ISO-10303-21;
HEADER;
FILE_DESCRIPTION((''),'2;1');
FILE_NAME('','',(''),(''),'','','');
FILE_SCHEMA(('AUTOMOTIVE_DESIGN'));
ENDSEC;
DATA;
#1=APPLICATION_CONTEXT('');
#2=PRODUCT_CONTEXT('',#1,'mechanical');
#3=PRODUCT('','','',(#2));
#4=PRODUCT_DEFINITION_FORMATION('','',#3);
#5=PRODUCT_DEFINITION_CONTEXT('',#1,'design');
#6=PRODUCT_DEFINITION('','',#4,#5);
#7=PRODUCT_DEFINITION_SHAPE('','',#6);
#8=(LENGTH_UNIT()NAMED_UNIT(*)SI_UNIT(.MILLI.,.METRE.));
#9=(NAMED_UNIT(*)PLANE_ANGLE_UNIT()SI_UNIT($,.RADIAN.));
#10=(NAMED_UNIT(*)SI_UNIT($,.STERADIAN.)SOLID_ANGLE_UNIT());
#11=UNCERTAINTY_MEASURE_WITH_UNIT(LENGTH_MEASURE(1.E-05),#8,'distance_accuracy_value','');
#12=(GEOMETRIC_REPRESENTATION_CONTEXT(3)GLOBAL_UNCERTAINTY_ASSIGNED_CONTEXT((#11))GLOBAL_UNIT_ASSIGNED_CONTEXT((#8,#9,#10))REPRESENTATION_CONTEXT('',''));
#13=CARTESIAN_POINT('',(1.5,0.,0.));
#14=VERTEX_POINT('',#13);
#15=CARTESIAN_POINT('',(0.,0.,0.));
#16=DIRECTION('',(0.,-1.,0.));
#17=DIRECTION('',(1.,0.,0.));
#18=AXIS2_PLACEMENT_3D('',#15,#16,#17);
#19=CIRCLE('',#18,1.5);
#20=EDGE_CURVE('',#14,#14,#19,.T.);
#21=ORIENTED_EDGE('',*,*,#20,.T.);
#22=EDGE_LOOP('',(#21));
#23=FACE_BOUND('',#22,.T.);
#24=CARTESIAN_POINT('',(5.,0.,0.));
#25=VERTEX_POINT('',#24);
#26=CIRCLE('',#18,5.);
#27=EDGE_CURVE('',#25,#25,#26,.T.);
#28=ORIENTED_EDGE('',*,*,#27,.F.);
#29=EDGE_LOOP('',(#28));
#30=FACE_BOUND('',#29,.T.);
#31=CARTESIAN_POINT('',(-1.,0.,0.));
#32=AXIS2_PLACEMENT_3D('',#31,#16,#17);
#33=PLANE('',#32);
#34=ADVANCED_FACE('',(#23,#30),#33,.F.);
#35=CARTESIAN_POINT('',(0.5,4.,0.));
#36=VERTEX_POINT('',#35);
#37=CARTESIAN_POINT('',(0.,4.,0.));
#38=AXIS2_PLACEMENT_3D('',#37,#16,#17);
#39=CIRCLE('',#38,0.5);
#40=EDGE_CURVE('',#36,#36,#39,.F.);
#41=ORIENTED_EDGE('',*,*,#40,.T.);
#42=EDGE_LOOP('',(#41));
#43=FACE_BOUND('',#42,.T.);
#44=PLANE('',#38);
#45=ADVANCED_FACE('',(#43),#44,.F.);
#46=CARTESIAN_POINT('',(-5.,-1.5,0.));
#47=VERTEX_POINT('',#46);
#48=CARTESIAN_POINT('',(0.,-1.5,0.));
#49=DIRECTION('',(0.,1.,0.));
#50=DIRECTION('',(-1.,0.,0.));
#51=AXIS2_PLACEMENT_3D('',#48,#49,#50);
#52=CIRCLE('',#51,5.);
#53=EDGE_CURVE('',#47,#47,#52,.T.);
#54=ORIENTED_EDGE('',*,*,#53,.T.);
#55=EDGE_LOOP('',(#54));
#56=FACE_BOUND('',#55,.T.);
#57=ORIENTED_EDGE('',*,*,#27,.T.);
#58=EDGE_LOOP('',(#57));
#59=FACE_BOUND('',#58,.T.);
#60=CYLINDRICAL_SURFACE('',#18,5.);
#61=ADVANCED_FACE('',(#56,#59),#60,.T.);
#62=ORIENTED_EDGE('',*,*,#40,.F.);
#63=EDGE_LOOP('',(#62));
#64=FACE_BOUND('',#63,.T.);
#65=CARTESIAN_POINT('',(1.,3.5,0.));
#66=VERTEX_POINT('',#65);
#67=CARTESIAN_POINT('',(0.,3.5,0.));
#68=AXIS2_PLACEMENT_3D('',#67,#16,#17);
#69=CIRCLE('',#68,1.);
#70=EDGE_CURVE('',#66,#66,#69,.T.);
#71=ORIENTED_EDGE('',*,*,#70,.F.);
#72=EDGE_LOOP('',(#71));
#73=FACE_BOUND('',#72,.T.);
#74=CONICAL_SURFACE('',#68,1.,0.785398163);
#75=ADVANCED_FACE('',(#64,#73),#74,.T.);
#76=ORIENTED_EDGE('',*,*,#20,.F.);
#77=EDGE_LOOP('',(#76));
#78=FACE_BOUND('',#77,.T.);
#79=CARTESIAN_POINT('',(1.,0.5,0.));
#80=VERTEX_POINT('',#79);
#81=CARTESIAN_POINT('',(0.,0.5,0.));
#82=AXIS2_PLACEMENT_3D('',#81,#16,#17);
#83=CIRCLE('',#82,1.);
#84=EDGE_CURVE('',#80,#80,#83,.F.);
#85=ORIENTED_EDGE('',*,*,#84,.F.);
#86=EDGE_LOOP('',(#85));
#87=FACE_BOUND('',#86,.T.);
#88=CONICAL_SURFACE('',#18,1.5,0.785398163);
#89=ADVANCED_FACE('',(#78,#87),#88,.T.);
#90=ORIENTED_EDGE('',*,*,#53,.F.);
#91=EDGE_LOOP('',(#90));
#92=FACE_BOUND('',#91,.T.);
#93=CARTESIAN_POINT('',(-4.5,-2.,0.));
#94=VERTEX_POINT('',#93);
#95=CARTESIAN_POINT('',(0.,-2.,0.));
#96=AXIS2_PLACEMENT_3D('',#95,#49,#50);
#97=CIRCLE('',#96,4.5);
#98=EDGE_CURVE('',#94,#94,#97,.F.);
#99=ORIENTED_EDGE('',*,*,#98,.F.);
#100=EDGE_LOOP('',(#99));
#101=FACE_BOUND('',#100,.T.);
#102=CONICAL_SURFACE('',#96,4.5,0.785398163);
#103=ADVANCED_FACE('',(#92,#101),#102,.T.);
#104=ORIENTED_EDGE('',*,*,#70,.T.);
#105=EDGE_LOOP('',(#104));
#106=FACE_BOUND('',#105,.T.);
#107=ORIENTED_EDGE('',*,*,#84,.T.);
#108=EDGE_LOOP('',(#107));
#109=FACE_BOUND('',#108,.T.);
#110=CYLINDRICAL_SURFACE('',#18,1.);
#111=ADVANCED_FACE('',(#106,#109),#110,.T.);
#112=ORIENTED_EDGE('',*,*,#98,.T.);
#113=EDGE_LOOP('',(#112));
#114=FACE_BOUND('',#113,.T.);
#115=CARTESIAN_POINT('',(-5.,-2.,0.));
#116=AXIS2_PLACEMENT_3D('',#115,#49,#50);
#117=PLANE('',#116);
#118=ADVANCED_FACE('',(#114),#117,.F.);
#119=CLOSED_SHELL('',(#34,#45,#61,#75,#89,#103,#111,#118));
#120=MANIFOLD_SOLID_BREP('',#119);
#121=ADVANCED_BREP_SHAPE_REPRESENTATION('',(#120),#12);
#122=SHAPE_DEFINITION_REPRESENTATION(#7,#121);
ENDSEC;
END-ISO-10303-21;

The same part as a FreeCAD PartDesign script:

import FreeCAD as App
import Part
import Sketcher
from FreeCAD import Vector


def edges_at(feature, points):
    """Names of the edges that pass closest to the given points."""
    edges = feature.Shape.Edges
    near = lambda p: min(range(len(edges)), key=lambda i: edges[i].distToShape(Part.Vertex(*p))[0])
    return sorted({f"Edge{near(p) + 1}" for p in points})

doc = App.newDocument("Part")
body = doc.addObject("PartDesign::Body", "Body")

sketch1 = body.newObject("Sketcher::SketchObject", "Sketch")
sketch1.AttachmentSupport = (doc.getObject("XY_Plane"), [""])
sketch1.MapMode = "FlatFace"
sketch1.addGeometry([
    Part.LineSegment(Vector(0, 4, 0), Vector(-1, 4, 0)),
    Part.LineSegment(Vector(-1, 4, 0), Vector(-1, 0, 0)),
    Part.LineSegment(Vector(-1, 0, 0), Vector(-5, 0, 0)),
    Part.LineSegment(Vector(-5, 0, 0), Vector(-5, -2, 0)),
    Part.LineSegment(Vector(-5, -2, 0), Vector(0, -2, 0)),
    Part.LineSegment(Vector(0, -2, 0), Vector(0, 4, 0)),
], False)
sketch1.addConstraint([
    Sketcher.Constraint("Coincident", 0, 2, 1, 1),
    Sketcher.Constraint("Coincident", 1, 2, 2, 1),
    Sketcher.Constraint("Coincident", 2, 2, 3, 1),
    Sketcher.Constraint("Coincident", 3, 2, 4, 1),
    Sketcher.Constraint("Coincident", 4, 2, 5, 1),
    Sketcher.Constraint("Coincident", 5, 2, 0, 1),
    Sketcher.Constraint("Horizontal", 0),
    Sketcher.Constraint("Vertical", 1),
    Sketcher.Constraint("Horizontal", 2),
    Sketcher.Constraint("Vertical", 3),
    Sketcher.Constraint("Horizontal", 4),
    Sketcher.Constraint("Vertical", 5),
    Sketcher.Constraint("PointOnObject", 1, 2, -1),
    Sketcher.Constraint("PointOnObject", 4, 2, -2),
    Sketcher.Constraint("Equal", 2, 1),
    Sketcher.Constraint("DistanceX", 0, 2, 0, 1, 1.0),
    Sketcher.Constraint("DistanceX", 2, 2, 2, 1, 4.0),
    Sketcher.Constraint("DistanceY", 3, 2, 3, 1, 2.0),
])
revolution = body.newObject("PartDesign::Revolution", "Revolution")
revolution.Profile = sketch1
revolution.ReferenceAxis = (sketch1, ["V_Axis"])
revolution.Angle = 360
doc.recompute()

chamfer = body.newObject("PartDesign::Chamfer", "Chamfer")
chamfer.Base = (revolution, edges_at(revolution, [(-5, -2, 0), (-1, 0, 0), (-1, 4, 0)]))
chamfer.Size = 0.5

doc.recompute()
